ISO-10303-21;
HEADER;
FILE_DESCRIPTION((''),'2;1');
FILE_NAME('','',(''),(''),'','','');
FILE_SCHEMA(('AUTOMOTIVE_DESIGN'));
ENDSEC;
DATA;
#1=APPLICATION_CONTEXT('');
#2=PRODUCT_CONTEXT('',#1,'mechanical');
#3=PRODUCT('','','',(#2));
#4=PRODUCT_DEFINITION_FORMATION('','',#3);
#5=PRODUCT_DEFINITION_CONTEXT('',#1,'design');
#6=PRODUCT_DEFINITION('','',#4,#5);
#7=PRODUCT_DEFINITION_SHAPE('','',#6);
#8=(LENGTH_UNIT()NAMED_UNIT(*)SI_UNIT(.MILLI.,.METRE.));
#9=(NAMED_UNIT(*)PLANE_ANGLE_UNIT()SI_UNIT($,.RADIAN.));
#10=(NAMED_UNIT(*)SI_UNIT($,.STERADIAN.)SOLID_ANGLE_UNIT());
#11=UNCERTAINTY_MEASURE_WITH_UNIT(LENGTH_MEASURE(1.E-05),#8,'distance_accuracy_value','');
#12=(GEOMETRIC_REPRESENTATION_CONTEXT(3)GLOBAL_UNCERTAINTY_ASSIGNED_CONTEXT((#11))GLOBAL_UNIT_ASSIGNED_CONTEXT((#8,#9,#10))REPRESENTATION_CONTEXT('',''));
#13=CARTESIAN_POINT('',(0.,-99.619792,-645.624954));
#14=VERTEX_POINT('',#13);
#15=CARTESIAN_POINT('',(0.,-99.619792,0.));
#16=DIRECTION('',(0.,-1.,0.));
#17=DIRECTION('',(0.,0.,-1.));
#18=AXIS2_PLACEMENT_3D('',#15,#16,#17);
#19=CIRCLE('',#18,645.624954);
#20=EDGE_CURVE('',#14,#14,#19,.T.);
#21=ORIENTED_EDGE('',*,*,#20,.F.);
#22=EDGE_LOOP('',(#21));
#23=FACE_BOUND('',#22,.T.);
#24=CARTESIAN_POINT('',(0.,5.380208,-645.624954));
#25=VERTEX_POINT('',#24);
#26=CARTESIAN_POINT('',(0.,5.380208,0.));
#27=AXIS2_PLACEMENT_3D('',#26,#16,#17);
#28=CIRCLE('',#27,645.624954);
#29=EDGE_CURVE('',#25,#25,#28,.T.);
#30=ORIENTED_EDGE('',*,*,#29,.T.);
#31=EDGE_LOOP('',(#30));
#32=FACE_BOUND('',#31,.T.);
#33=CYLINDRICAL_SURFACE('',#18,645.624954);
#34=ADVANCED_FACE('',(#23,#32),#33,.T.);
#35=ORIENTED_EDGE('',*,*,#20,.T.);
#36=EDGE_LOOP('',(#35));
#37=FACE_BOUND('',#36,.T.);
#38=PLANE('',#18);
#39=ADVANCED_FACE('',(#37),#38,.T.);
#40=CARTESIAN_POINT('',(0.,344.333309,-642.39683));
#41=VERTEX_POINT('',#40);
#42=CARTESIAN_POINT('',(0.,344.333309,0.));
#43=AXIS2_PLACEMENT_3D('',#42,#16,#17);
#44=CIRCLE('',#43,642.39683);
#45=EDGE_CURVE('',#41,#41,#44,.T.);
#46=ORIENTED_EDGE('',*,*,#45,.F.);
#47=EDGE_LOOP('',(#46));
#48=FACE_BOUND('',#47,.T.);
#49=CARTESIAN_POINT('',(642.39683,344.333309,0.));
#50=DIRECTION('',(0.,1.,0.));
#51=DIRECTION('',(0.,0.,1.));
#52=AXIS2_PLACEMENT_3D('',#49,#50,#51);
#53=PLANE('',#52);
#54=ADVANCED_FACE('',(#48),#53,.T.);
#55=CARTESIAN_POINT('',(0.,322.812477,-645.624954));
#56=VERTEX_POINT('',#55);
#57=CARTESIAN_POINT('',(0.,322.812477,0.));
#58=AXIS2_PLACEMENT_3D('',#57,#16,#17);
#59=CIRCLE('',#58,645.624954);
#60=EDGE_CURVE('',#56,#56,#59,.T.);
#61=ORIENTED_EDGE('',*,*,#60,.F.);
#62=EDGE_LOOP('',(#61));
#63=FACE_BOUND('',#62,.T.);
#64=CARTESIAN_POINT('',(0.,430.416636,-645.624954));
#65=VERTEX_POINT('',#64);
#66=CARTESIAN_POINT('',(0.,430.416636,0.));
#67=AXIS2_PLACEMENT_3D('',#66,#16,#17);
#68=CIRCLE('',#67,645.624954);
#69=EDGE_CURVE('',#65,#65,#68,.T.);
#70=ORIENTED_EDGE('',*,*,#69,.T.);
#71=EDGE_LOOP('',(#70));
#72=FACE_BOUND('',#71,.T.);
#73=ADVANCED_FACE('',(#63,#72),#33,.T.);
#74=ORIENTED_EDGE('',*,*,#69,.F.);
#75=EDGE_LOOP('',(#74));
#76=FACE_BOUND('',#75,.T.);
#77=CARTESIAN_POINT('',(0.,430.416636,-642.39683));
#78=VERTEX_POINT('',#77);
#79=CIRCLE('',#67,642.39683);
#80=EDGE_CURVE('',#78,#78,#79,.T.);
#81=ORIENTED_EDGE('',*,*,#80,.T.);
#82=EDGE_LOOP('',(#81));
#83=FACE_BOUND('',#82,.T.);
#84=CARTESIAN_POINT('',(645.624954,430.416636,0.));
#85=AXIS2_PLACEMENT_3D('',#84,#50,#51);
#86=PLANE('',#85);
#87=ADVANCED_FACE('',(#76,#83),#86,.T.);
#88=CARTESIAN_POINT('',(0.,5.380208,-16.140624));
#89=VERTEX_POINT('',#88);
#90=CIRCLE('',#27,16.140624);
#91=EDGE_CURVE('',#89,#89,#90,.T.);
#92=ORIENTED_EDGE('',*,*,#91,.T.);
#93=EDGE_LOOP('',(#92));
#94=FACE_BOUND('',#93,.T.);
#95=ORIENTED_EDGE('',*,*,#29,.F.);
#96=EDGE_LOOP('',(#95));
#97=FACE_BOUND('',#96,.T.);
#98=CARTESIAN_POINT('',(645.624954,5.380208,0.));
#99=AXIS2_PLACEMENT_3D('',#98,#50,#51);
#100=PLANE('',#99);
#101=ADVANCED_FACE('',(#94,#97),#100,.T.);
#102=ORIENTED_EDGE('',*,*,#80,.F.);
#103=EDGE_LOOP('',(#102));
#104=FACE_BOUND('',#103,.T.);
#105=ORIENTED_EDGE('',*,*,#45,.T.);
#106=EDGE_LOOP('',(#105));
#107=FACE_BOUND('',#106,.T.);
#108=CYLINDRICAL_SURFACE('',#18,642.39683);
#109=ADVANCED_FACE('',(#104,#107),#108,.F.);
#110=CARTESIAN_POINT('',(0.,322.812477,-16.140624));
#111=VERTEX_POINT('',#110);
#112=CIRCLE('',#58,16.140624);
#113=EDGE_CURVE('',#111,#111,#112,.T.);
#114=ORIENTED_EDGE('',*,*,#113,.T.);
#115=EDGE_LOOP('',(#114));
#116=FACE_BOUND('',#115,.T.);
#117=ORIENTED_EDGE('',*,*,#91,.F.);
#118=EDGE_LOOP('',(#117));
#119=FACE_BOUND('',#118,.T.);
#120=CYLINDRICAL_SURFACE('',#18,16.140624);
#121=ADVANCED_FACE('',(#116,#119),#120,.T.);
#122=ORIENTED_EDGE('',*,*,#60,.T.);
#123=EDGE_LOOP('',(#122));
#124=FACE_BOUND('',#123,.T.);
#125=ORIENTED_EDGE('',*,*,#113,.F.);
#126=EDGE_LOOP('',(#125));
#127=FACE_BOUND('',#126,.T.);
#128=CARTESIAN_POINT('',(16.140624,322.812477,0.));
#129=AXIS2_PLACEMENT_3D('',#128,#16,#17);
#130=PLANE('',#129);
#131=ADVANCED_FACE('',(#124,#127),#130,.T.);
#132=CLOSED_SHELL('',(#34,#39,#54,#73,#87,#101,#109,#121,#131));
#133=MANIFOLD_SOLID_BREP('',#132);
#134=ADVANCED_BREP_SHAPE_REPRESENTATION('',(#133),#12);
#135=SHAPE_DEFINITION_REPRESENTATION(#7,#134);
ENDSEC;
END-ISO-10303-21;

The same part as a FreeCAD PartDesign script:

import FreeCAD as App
import Part
import Sketcher


def add_polygon(sketch, points):
    """Adds a closed chain of lines whose ends are joined by coincident constraints."""
    first, n = sketch.GeometryCount, len(points)
    for a, b in zip(points, points[1:] + points[:1]):
        sketch.addGeometry(Part.LineSegment(App.Vector(*a, 0), App.Vector(*b, 0)), False)
    for i in range(n):
        sketch.addConstraint(Sketcher.Constraint("Coincident", first + i, 2, first + (i + 1) % n, 1))

doc = App.newDocument("Part")
body = doc.addObject("PartDesign::Body", "Body")

# Sketch on XY plane
sketch1 = body.newObject("Sketcher::SketchObject", "Sketch")
sketch1.AttachmentSupport = (doc.getObject("XY_Plane"), [""])
sketch1.MapMode = "FlatFace"
add_polygon(sketch1, [(0, -99.6), (645.6, -99.6), (645.6, 5.4), (16.1, 5.4), (16.1, 322.8), (645.6, 322.8), (645.6, 430.4), (642.4, 430.4), (642.4, 344.3), (0, 344.3)])  # lines 0-9
sketch1.addConstraint(Sketcher.Constraint("Horizontal", 0))
sketch1.addConstraint(Sketcher.Constraint("Vertical", 1))
sketch1.addConstraint(Sketcher.Constraint("Horizontal", 2))
sketch1.addConstraint(Sketcher.Constraint("Vertical", 3))
sketch1.addConstraint(Sketcher.Constraint("Horizontal", 4))
sketch1.addConstraint(Sketcher.Constraint("Vertical", 5))
sketch1.addConstraint(Sketcher.Constraint("Horizontal", 6))
sketch1.addConstraint(Sketcher.Constraint("Vertical", 7))
sketch1.addConstraint(Sketcher.Constraint("Horizontal", 8))
sketch1.addConstraint(Sketcher.Constraint("Vertical", 9))
sketch1.addConstraint(Sketcher.Constraint("PointOnObject", 8, 2, -2))
sketch1.addConstraint(Sketcher.Constraint("Vertical", 1, 2, 4, 2))
sketch1.addConstraint(Sketcher.Constraint("DistanceY", 1, 1, 1, 2, 105.0))
sketch1.addConstraint(Sketcher.Constraint("DistanceY", 9, 2, 9, 1, 443.953101))
sketch1.addConstraint(Sketcher.Constraint("DistanceX", 2, 2, 2, 1, 629.484331))
sketch1.addConstraint(Sketcher.Constraint("DistanceX", 8, 2, 8, 1, 642.39683))
sketch1.addConstraint(Sketcher.Constraint("DistanceY", 3, 1, 3, 2, 317.432269))
sketch1.addConstraint(Sketcher.Constraint("DistanceY", 5, 1, 5, 2, 107.604159))
sketch1.addConstraint(Sketcher.Constraint("DistanceX", 0, 1, 0, 2, 645.624954))
sketch1.addConstraint(Sketcher.Constraint("DistanceY", -1, 1, 7, 2, 344.333309))
revolution = body.newObject("PartDesign::Revolution", "Revolution")
revolution.Profile = sketch1
revolution.ReferenceAxis = (sketch1, ["V_Axis"])
revolution.Angle = 360

doc.recompute()
